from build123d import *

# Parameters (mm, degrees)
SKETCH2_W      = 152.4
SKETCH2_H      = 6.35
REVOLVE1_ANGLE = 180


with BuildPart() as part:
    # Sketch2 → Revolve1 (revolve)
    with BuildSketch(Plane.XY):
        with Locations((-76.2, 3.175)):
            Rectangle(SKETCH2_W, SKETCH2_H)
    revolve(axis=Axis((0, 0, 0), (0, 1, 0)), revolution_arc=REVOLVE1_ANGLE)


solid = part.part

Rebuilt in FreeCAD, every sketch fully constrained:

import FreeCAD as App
import Part
import Sketcher
Q = App.Units.Quantity

doc = App.newDocument("Part")
params = doc.addObject("Spreadsheet::Sheet", "Params")
for row, (alias, value) in enumerate([
    ("sketch1_width", "6 in"),
    ("sketch1_height", "0.25 in"),
    ("revolution_angle", "180 deg"),
], start=1):
    params.set(f"A{row}", alias)
    params.set(f"B{row}", "=" + value)
    params.setAlias(f"B{row}", alias)

body = doc.addObject("PartDesign::Body", "Body")

# Sketch on XY plane
sketch1 = body.newObject("Sketcher::SketchObject", "Sketch")
sketch1.AttachmentSupport = (doc.getObject("XY_Plane"), [""])
sketch1.MapMode = "FlatFace"
sketch1.addGeometry([
    Part.LineSegment(App.Vector(-152, 6, 0), App.Vector(-152, 0, 0)),
    Part.LineSegment(App.Vector(-152, 0, 0), App.Vector(0, 0, 0)),
    Part.LineSegment(App.Vector(0, 0, 0), App.Vector(0, 6, 0)),
    Part.LineSegment(App.Vector(0, 6, 0), App.Vector(-152, 6, 0)),
], False)
sketch1.addConstraint([
    Sketcher.Constraint("Coincident", 0, 2, 1, 1),
    Sketcher.Constraint("Coincident", 1, 2, 2, 1),
    Sketcher.Constraint("Coincident", 2, 2, 3, 1),
    Sketcher.Constraint("Coincident", 3, 2, 0, 1),
    Sketcher.Constraint("Vertical", 0),
    Sketcher.Constraint("Horizontal", 1),
    Sketcher.Constraint("Vertical", 2),
    Sketcher.Constraint("Horizontal", 3),
    Sketcher.Constraint("Coincident", 1, 2, -1, 1),
    Sketcher.Constraint("DistanceX", 1, 1, 1, 2, Q("6 in")),
    Sketcher.Constraint("DistanceY", 0, 2, 0, 1, Q("0.25 in")),
])
sketch1.setExpression("Constraints[9]", "Params.sketch1_width")
sketch1.setExpression("Constraints[10]", "Params.sketch1_height")
revolution = body.newObject("PartDesign::Revolution", "Revolution")
revolution.Profile = sketch1
revolution.ReferenceAxis = (sketch1, ["V_Axis"])
revolution.setExpression("Angle", "Params.revolution_angle")

doc.recompute()
